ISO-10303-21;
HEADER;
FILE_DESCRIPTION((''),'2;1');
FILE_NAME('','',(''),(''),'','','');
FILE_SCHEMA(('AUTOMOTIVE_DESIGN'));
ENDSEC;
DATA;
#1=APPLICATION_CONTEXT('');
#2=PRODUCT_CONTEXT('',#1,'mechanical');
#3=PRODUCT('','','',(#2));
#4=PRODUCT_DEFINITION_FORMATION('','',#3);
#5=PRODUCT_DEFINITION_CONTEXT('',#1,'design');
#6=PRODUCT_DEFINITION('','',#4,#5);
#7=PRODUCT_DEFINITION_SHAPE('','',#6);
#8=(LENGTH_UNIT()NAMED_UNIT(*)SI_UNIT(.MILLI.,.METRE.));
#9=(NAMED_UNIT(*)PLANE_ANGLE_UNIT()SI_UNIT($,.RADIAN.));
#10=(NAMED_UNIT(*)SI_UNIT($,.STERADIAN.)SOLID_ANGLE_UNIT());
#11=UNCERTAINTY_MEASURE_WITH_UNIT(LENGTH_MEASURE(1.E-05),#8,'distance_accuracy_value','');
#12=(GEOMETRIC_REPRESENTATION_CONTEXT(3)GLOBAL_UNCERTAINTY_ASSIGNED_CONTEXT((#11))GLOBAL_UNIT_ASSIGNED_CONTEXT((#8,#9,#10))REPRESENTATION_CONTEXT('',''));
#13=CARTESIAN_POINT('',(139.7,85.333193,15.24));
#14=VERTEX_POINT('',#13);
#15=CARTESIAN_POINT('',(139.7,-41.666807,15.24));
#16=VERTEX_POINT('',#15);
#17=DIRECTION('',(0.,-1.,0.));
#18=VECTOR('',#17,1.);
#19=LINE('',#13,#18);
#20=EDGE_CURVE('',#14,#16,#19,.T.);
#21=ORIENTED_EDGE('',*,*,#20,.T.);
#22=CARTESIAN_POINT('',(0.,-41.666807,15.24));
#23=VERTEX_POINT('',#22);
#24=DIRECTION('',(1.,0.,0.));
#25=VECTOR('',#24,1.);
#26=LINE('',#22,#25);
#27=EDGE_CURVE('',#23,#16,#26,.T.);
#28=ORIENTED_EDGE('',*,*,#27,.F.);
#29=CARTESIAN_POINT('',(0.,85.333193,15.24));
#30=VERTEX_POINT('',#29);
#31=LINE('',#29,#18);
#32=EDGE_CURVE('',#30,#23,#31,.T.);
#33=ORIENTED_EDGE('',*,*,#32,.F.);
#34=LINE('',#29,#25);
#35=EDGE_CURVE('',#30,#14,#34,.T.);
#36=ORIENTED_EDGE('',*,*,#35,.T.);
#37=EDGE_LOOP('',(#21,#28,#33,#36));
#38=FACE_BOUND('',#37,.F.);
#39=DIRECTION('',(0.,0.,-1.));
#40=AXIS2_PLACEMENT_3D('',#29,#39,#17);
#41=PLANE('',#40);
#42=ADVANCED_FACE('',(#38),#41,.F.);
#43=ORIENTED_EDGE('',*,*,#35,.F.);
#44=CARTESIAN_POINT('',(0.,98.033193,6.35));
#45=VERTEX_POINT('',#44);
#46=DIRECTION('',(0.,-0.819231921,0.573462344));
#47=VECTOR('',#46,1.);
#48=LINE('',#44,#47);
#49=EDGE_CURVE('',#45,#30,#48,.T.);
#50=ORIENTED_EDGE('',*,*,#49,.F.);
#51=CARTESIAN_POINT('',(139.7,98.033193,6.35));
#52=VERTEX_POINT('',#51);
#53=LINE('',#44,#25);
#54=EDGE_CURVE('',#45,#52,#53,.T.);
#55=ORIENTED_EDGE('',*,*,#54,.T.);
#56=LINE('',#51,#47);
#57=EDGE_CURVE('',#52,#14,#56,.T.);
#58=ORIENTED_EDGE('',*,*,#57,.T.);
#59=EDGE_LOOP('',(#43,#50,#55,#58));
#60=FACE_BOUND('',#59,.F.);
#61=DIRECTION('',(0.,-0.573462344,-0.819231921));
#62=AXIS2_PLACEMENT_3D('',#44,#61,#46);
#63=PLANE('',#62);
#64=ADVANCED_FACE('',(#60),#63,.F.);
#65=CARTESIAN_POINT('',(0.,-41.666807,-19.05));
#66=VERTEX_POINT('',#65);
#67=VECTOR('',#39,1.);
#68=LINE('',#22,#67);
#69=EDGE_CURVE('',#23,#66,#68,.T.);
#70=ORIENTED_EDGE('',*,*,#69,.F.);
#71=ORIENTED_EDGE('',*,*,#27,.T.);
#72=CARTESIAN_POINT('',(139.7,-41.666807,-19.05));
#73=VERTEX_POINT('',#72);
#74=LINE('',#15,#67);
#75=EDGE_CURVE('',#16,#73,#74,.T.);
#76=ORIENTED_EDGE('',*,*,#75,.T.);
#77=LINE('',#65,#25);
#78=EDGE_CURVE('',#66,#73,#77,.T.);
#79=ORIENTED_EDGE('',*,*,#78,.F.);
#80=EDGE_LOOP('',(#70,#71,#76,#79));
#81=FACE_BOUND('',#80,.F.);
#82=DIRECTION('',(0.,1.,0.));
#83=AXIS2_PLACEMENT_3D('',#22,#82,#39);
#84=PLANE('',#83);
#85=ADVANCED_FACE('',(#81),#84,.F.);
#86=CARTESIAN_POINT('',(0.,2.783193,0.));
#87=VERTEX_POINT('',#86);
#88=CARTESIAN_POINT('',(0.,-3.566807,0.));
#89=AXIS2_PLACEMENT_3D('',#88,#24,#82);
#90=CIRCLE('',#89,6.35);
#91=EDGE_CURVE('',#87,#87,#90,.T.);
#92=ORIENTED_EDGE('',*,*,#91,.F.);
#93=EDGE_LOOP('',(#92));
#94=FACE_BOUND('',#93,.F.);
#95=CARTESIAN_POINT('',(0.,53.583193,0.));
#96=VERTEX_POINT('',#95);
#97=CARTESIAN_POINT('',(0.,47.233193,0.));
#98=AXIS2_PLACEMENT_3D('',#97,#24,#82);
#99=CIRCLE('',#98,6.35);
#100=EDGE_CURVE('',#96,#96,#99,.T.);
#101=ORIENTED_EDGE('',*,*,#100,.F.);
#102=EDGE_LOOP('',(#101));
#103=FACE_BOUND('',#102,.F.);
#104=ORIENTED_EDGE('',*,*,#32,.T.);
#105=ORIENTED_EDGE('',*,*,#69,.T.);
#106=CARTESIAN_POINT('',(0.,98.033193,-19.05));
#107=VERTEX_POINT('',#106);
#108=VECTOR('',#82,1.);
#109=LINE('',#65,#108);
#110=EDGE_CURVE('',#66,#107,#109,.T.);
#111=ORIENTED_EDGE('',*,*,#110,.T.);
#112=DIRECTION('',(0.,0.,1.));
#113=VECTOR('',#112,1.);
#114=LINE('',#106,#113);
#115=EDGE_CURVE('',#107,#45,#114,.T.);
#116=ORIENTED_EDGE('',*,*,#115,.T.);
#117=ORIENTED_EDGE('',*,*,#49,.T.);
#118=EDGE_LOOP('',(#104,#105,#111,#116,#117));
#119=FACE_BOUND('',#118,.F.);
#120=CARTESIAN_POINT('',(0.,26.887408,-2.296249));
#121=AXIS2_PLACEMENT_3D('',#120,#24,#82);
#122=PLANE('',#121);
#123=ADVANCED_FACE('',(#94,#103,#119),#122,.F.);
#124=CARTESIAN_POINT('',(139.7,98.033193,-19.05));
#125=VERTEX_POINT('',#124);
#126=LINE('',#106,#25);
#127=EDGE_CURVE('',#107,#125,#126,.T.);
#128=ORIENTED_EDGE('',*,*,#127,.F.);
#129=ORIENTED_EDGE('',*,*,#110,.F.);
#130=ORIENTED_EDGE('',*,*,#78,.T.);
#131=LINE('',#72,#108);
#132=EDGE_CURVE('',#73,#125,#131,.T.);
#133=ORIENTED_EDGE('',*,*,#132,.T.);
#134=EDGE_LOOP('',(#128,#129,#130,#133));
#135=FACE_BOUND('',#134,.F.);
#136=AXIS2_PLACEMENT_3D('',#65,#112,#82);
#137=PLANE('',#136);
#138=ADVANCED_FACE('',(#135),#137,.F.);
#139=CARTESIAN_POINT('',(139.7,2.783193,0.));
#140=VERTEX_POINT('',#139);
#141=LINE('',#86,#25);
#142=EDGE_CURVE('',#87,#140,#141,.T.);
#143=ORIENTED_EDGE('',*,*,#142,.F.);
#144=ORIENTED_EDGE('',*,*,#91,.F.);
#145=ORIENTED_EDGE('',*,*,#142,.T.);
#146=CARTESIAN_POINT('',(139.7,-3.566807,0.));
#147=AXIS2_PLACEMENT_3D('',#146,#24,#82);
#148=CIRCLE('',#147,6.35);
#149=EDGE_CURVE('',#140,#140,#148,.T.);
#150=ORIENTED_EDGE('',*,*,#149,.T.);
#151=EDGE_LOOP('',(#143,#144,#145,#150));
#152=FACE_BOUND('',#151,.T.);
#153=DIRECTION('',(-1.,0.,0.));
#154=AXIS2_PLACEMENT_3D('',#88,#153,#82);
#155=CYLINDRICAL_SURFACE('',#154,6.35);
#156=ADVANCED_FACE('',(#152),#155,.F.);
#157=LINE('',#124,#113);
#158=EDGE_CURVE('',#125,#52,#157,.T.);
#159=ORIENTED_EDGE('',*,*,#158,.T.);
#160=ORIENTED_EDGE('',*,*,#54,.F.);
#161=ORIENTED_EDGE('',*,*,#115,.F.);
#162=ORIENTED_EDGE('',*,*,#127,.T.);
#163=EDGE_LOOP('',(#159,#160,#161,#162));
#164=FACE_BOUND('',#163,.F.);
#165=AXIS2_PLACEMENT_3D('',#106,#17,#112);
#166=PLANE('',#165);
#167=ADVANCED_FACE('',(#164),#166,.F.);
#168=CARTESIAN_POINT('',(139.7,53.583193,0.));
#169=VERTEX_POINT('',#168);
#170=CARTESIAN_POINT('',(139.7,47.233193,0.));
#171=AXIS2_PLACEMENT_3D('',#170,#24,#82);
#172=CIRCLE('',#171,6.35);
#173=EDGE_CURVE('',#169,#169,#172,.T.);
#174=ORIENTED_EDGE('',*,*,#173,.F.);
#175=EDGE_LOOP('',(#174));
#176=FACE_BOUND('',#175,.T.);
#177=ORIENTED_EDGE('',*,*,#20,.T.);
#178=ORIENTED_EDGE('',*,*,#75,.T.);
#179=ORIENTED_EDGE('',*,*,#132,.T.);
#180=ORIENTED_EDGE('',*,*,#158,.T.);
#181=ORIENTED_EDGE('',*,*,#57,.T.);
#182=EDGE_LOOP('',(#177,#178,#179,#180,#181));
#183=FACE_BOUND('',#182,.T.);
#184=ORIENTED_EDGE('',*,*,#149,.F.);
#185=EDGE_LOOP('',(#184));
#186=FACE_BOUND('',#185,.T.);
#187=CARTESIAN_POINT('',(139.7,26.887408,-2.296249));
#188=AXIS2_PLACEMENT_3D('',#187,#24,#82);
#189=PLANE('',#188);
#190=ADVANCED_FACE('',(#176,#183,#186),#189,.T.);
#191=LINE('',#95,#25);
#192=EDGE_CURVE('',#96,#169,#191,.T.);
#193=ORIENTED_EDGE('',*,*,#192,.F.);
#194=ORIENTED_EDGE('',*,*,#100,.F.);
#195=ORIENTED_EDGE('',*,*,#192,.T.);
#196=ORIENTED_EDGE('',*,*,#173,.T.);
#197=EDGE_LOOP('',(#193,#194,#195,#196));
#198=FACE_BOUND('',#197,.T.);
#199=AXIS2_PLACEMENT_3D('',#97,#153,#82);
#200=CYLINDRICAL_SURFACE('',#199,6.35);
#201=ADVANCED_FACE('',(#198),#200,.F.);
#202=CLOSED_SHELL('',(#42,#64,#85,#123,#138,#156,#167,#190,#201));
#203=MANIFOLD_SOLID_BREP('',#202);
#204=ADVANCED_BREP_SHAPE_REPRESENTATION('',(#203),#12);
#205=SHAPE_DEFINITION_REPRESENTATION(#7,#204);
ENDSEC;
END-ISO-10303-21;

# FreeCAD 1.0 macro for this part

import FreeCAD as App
import Part
import Sketcher
from FreeCAD import Vector
Q = App.Units.Quantity


def add_polygon(sketch, points):
    """Adds a closed chain of lines whose ends are joined by coincident constraints."""
    first, n = sketch.GeometryCount, len(points)
    for a, b in zip(points, points[1:] + points[:1]):
        sketch.addGeometry(Part.LineSegment(App.Vector(*a, 0), App.Vector(*b, 0)), False)
    for i in range(n):
        sketch.addConstraint(Sketcher.Constraint("Coincident", first + i, 2, first + (i + 1) % n, 1))

doc = App.newDocument("Part")
body = doc.addObject("PartDesign::Body", "Body")

# Sketch on YZ plane
sketch1 = body.newObject("Sketcher::SketchObject", "Sketch")
sketch1.AttachmentSupport = (doc.getObject("YZ_Plane"), [""])
sketch1.MapMode = "FlatFace"
add_polygon(sketch1, [(98.033193, 6.35), (85.333193, 15.24), (-41.666807, 15.24), (-41.666807, -19.05), (98.033193, -19.05)])  # lines 0-4
sketch1.addGeometry(Part.Circle(Vector(-3.566807, 0, 0), Vector(0, 0, 1), 6.35), False)  # 5
sketch1.addGeometry(Part.Circle(Vector(47.233193, 0, 0), Vector(0, 0, 1), 6.35), False)  # 6
sketch1.addConstraint(Sketcher.Constraint("Horizontal", 1))
sketch1.addConstraint(Sketcher.Constraint("Vertical", 2))
sketch1.addConstraint(Sketcher.Constraint("Horizontal", 3))
sketch1.addConstraint(Sketcher.Constraint("Vertical", 4))
sketch1.addConstraint(Sketcher.Constraint("Equal", 5, 6))
sketch1.addConstraint(Sketcher.Constraint("PointOnObject", 5, 3, -1))
sketch1.addConstraint(Sketcher.Constraint("PointOnObject", 6, 3, -1))
sketch1.addConstraint(Sketcher.Constraint("Diameter", 5, Q("0.5 in")))
sketch1.addConstraint(Sketcher.Constraint("DistanceX", 1, 2, 1, 1, Q("5 in")))
sketch1.addConstraint(Sketcher.Constraint("DistanceY", 4, 1, 4, 2, Q("1 in")))
sketch1.addConstraint(Sketcher.Constraint("DistanceX", 3, 1, 3, 2, Q("5.5 in")))
sketch1.addConstraint(Sketcher.Constraint("DistanceX", 5, 3, 6, 3, Q("2 in")))
sketch1.addConstraint(Sketcher.Constraint("DistanceX", 6, 3, 3, 2, Q("2 in")))
sketch1.addConstraint(Sketcher.Constraint("DistanceY", 2, 2, 2, 1, Q("1.35 in")))
sketch1.addConstraint(Sketcher.Constraint("DistanceY", -1, 1, 0, 2, Q("0.6 in")))
sketch1.addConstraint(Sketcher.Constraint("DistanceX", 5, 3, -1, 1, 3.566807))
pad1 = body.newObject("PartDesign::Pad", "Pad")
pad1.Profile = sketch1
pad1.Length = Q("5.5 in")

doc.recompute()
